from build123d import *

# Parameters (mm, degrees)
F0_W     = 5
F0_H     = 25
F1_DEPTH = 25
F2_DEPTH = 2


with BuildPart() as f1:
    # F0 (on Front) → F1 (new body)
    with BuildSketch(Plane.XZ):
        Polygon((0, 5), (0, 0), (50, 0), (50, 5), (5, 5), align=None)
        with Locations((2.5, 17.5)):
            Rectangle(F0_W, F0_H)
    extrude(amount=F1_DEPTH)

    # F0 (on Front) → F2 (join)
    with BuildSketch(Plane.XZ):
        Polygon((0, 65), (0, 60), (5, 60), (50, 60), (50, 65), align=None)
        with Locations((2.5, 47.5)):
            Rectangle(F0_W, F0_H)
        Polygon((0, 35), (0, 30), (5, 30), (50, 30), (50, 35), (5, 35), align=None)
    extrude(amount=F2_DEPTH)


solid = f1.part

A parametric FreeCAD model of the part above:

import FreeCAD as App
import Part
import Sketcher
Q = App.Units.Quantity


def add_polygon(sketch, points):
    """Adds a closed chain of lines whose ends are joined by coincident constraints."""
    first, n = sketch.GeometryCount, len(points)
    for a, b in zip(points, points[1:] + points[:1]):
        sketch.addGeometry(Part.LineSegment(App.Vector(*a, 0), App.Vector(*b, 0)), False)
    for i in range(n):
        sketch.addConstraint(Sketcher.Constraint("Coincident", first + i, 2, first + (i + 1) % n, 1))

doc = App.newDocument("Part")
params = doc.addObject("Spreadsheet::Sheet", "Params")
for row, (alias, value) in enumerate([
    ("sketch1_width", "50 mm"),
    ("sketch1_width2", "45 mm"),
    ("sketch1_height", "25 mm"),
    ("pad1_length", "25 mm"),
    ("sketch2_width", "50 mm"),
    ("sketch2_width2", "45 mm"),
    ("sketch2_height", "35 mm"),
    ("sketch2_height2", "5 mm"),
    ("pad2_length", "2 mm"),
], start=1):
    params.set(f"A{row}", alias)
    params.set(f"B{row}", "=" + value)
    params.setAlias(f"B{row}", alias)

body = doc.addObject("PartDesign::Body", "Body")

# Sketch on XZ plane
sketch1 = doc.addObject("Sketcher::SketchObject", "Sketch")
body.addObject(sketch1)
sketch1.AttachmentSupport = (doc.XZ_Plane, [""])
sketch1.MapMode = "FlatFace"
add_polygon(sketch1, [(0, 0), (50, 0), (50, 5), (5, 5), (5, 30), (0, 30)])  # lines 0-5
sketch1.addConstraint(Sketcher.Constraint("Horizontal", 0))
sketch1.addConstraint(Sketcher.Constraint("Vertical", 1))
sketch1.addConstraint(Sketcher.Constraint("Horizontal", 2))
sketch1.addConstraint(Sketcher.Constraint("Vertical", 3))
sketch1.addConstraint(Sketcher.Constraint("Horizontal", 4))
sketch1.addConstraint(Sketcher.Constraint("Vertical", 5))
sketch1.addConstraint(Sketcher.Constraint("Coincident", 5, 2, -1, 1))
sketch1.addConstraint(Sketcher.Constraint("Equal", 4, 1))
sketch1.addConstraint(Sketcher.Constraint("DistanceX", 0, 1, 0, 2, Q("50 mm")))
sketch1.addConstraint(Sketcher.Constraint("DistanceX", 2, 2, 2, 1, Q("45 mm")))
sketch1.addConstraint(Sketcher.Constraint("DistanceY", 3, 1, 3, 2, Q("25 mm")))
sketch1.setExpression("Constraints[14]", "Params.sketch1_width")
sketch1.setExpression("Constraints[15]", "Params.sketch1_width2")
sketch1.setExpression("Constraints[16]", "Params.sketch1_height")
pad1 = doc.addObject("PartDesign::Pad", "Pad")
body.addObject(pad1)
pad1.Profile = sketch1
pad1.setExpression("Length", "Params.pad1_length")

# Sketch on XZ plane
sketch2 = doc.addObject("Sketcher::SketchObject", "Sketch001")
body.addObject(sketch2)
sketch2.AttachmentSupport = (doc.XZ_Plane, [""])
sketch2.MapMode = "FlatFace"
add_polygon(sketch2, [(0, 65), (0, 30), (50, 30), (50, 35), (5, 35), (5, 60), (50, 60), (50, 65)])  # lines 0-7
sketch2.addConstraint(Sketcher.Constraint("Vertical", 0))
sketch2.addConstraint(Sketcher.Constraint("Horizontal", 1))
sketch2.addConstraint(Sketcher.Constraint("Vertical", 2))
sketch2.addConstraint(Sketcher.Constraint("Horizontal", 3))
sketch2.addConstraint(Sketcher.Constraint("Vertical", 4))
sketch2.addConstraint(Sketcher.Constraint("Horizontal", 5))
sketch2.addConstraint(Sketcher.Constraint("Vertical", 6))
sketch2.addConstraint(Sketcher.Constraint("Horizontal", 7))
sketch2.addConstraint(Sketcher.Constraint("PointOnObject", 0, 2, -2))
sketch2.addConstraint(Sketcher.Constraint("Vertical", 2, 2, 5, 2))
sketch2.addConstraint(Sketcher.Constraint("Equal", 2, 6))
sketch2.addConstraint(Sketcher.Constraint("DistanceX", 1, 1, 1, 2, Q("50 mm")))
sketch2.addConstraint(Sketcher.Constraint("DistanceX", 3, 2, 3, 1, Q("45 mm")))
sketch2.addConstraint(Sketcher.Constraint("DistanceY", 0, 2, 0, 1, Q("35 mm")))
sketch2.addConstraint(Sketcher.Constraint("DistanceY", 2, 1, 2, 2, Q("5 mm")))
sketch2.addConstraint(Sketcher.Constraint("DistanceY", -1, 1, 0, 2, Q("30 mm")))
sketch2.setExpression("Constraints[19]", "Params.sketch2_width")
sketch2.setExpression("Constraints[20]", "Params.sketch2_width2")
sketch2.setExpression("Constraints[21]", "Params.sketch2_height")
sketch2.setExpression("Constraints[22]", "Params.sketch2_height2")
pad2 = doc.addObject("PartDesign::Pad", "Pad001")
body.addObject(pad2)
pad2.Profile = sketch2
pad2.setExpression("Length", "Params.pad2_length")

doc.recompute()
